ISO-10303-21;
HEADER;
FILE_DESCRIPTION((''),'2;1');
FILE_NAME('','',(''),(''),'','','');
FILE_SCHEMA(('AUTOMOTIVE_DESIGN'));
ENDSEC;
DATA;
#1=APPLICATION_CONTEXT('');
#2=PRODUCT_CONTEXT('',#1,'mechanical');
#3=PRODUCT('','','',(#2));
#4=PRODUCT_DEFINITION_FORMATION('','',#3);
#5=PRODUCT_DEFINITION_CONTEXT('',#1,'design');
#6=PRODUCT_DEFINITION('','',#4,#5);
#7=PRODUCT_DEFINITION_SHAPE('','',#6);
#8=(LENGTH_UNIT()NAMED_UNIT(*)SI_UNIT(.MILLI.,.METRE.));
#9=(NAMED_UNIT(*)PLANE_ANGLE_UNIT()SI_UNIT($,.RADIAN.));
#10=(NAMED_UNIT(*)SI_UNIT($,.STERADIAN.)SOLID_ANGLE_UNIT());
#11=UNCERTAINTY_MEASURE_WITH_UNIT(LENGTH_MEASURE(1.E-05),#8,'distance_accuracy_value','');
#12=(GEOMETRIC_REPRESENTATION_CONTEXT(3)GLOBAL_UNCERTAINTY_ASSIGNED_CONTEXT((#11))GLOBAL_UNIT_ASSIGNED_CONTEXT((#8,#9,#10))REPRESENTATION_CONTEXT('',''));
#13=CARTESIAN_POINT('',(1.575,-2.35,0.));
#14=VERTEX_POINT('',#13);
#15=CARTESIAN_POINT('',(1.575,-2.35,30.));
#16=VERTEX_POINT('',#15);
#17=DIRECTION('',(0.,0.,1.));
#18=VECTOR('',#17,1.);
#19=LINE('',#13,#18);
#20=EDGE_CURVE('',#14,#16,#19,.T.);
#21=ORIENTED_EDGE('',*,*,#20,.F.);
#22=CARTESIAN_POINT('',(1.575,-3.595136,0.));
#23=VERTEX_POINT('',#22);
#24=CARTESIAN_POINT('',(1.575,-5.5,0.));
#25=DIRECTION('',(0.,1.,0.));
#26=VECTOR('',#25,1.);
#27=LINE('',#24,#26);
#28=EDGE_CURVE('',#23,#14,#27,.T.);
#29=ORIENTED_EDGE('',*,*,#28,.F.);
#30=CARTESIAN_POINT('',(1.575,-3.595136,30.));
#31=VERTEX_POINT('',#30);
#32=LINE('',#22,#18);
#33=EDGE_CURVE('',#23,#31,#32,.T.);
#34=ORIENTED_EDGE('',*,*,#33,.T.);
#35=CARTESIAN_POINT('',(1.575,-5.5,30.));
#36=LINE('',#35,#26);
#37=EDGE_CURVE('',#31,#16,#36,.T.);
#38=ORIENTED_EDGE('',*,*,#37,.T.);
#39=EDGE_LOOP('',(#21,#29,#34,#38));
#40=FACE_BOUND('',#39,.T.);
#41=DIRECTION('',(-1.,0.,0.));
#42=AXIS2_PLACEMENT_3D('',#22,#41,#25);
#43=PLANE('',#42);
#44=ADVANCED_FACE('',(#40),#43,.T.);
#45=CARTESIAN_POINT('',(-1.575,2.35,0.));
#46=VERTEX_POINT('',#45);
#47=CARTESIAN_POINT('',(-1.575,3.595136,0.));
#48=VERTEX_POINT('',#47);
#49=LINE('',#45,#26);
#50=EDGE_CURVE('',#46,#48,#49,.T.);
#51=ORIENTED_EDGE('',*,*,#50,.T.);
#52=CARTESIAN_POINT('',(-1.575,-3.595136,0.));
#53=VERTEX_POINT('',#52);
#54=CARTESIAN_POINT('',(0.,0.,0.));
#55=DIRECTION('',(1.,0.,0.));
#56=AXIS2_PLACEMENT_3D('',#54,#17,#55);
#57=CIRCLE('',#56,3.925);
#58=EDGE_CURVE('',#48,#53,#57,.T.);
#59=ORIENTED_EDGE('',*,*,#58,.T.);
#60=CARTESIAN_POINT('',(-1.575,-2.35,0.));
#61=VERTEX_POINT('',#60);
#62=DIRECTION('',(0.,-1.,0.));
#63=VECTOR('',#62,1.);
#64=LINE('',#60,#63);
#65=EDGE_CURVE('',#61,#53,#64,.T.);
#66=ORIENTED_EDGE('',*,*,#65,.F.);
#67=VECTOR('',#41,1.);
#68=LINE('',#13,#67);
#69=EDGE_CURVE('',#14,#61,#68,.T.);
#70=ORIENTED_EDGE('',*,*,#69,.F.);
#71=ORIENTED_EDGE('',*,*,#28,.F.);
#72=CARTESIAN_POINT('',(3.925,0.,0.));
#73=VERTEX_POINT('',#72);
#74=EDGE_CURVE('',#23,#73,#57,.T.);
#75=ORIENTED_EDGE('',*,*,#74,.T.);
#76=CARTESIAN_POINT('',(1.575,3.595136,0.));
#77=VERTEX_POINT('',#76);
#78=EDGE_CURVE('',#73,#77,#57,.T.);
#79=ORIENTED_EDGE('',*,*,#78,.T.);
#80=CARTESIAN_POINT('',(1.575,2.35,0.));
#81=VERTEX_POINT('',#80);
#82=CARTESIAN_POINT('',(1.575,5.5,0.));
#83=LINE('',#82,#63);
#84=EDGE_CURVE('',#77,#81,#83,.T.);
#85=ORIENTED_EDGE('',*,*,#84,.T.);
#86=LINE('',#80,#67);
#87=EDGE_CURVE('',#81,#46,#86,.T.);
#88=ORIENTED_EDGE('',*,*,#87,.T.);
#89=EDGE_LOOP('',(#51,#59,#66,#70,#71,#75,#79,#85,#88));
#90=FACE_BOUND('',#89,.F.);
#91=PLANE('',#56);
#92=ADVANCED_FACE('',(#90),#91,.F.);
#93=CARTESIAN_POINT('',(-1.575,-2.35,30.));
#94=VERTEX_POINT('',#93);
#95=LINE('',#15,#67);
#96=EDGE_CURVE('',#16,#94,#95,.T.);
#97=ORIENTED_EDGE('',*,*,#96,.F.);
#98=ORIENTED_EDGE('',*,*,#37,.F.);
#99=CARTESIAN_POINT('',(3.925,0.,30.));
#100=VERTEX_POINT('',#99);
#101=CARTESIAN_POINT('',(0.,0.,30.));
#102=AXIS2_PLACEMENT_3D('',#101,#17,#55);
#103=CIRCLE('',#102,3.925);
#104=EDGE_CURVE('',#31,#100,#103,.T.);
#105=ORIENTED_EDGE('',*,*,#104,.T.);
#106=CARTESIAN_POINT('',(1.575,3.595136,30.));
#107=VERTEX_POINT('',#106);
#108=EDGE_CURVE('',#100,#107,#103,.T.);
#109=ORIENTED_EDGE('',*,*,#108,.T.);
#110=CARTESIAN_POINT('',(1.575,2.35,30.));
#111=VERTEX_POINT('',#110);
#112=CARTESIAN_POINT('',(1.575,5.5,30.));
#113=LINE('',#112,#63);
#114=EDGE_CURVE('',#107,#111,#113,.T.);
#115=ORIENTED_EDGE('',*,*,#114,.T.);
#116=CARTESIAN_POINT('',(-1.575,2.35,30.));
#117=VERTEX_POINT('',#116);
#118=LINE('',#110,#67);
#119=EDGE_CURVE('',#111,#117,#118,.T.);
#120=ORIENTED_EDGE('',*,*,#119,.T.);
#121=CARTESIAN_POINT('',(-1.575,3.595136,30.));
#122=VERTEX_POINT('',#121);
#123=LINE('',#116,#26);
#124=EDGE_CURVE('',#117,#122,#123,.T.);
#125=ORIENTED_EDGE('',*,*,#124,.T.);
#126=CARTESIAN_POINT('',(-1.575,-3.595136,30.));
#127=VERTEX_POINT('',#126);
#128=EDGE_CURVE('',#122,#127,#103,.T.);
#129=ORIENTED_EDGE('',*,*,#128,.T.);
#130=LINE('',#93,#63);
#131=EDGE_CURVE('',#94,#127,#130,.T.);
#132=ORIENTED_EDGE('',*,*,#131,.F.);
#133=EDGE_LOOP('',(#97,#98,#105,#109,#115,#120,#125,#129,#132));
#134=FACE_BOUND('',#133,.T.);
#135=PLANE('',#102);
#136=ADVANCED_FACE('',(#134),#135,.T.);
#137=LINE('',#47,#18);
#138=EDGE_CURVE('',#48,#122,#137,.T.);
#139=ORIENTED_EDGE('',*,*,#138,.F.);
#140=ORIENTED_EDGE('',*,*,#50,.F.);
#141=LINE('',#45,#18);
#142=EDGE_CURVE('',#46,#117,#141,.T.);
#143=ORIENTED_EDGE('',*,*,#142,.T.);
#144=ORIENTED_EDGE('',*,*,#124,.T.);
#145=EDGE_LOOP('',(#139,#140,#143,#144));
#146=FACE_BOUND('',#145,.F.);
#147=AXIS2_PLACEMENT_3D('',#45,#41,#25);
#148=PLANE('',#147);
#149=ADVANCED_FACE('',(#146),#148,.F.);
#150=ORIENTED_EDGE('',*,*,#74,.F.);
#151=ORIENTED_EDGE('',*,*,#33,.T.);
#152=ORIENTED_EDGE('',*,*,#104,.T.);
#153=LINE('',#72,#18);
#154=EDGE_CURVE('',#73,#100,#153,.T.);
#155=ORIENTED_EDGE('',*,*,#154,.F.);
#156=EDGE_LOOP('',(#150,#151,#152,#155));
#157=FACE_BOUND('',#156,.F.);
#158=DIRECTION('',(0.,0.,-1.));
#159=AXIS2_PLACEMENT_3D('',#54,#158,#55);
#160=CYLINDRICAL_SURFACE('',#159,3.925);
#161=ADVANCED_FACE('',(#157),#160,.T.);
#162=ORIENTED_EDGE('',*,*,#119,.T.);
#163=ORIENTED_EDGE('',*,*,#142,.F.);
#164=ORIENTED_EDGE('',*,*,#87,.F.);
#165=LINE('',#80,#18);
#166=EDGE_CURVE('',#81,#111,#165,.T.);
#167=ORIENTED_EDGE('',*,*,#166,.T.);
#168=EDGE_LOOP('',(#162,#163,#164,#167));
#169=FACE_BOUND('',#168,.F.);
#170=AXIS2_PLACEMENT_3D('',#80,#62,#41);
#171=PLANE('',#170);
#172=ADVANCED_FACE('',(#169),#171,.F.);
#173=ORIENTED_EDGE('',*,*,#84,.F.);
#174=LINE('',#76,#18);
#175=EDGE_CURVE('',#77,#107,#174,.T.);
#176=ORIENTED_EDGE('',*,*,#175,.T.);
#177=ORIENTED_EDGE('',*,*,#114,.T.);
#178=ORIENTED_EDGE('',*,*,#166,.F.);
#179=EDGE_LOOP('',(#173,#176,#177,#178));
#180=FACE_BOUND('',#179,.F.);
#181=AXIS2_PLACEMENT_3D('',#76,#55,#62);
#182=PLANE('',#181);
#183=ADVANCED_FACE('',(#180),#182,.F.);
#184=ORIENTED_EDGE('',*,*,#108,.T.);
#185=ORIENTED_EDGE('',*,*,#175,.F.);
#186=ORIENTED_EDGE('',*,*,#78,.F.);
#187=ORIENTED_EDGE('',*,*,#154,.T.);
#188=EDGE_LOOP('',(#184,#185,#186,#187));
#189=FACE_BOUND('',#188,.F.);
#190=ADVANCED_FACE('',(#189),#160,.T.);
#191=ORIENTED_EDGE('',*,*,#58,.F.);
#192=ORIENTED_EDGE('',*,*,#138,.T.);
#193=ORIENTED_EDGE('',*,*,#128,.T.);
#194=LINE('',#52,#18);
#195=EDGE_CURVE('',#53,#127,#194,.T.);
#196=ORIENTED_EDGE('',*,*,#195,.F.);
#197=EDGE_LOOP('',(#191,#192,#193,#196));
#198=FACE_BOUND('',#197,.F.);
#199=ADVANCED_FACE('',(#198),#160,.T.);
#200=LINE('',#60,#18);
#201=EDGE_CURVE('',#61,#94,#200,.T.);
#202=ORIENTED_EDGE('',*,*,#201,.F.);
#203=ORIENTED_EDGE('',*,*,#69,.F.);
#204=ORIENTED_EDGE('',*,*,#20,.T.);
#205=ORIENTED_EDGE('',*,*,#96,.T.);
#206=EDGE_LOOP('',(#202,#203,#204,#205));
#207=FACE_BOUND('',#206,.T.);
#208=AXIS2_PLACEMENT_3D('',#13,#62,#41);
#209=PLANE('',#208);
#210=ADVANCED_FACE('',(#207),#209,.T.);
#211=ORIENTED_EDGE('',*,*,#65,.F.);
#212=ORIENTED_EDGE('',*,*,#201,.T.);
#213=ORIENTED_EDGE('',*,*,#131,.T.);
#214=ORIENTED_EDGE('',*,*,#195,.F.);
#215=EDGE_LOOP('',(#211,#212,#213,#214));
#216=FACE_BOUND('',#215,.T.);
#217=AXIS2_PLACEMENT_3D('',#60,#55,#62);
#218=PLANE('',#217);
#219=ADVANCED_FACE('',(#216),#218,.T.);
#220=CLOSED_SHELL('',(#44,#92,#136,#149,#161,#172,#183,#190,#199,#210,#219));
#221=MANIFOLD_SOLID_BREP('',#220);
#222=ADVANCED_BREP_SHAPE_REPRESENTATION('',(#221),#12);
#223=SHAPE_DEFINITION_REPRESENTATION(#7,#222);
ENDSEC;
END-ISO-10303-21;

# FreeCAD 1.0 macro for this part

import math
import FreeCAD as App
import Part
import Sketcher

V = App.Vector
Q = App.Units.Quantity

doc = App.newDocument("Part")
params = doc.addObject("Spreadsheet::Sheet", "Params")
for row, (alias, value) in enumerate([
    ("sketch1_width", "3.15 mm"),
    ("pad1_length", "30 mm"),
], start=1):
    params.set(f"A{row}", alias)
    params.set(f"B{row}", "=" + value)
    params.setAlias(f"B{row}", alias)

body = doc.addObject("PartDesign::Body", "Body")

sketch1 = body.newObject("Sketcher::SketchObject", "Sketch")
sketch1.AttachmentSupport = (doc.getObject("XY_Plane"), [""])
sketch1.MapMode = "FlatFace"
sketch1.addGeometry(Part.ArcOfCircle(Part.Circle(V(0, 0, 0), V(0, 0, 1), 3.925), math.radians(-66.342161), math.radians(66.342161)), False)
sketch1.addGeometry(Part.LineSegment(V(1.575, 3.595136, 0), V(1.575, 2.35, 0)), False)
sketch1.addGeometry(Part.LineSegment(V(1.575, 2.35, 0), V(-1.575, 2.35, 0)), False)
sketch1.addGeometry(Part.LineSegment(V(-1.575, 2.35, 0), V(-1.575, 3.595136, 0)), False)
sketch1.addGeometry(Part.ArcOfCircle(Part.Circle(V(0, 0, 0), V(0, 0, 1), 3.925), math.radians(113.657839), math.radians(246.342161)), False)
sketch1.addGeometry(Part.LineSegment(V(-1.575, -3.595136, 0), V(-1.575, -2.35, 0)), False)
sketch1.addGeometry(Part.LineSegment(V(-1.575, -2.35, 0), V(1.575, -2.35, 0)), False)
sketch1.addGeometry(Part.LineSegment(V(1.575, -2.35, 0), V(1.575, -3.595136, 0)), False)
sketch1.addConstraint(Sketcher.Constraint("Coincident", 0, 2, 1, 1))
sketch1.addConstraint(Sketcher.Constraint("Coincident", 1, 2, 2, 1))
sketch1.addConstraint(Sketcher.Constraint("Coincident", 2, 2, 3, 1))
sketch1.addConstraint(Sketcher.Constraint("Coincident", 3, 2, 4, 1))
sketch1.addConstraint(Sketcher.Constraint("Coincident", 4, 2, 5, 1))
sketch1.addConstraint(Sketcher.Constraint("Coincident", 5, 2, 6, 1))
sketch1.addConstraint(Sketcher.Constraint("Coincident", 6, 2, 7, 1))
sketch1.addConstraint(Sketcher.Constraint("Coincident", 7, 2, 0, 1))
sketch1.addConstraint(Sketcher.Constraint("Vertical", 1))
sketch1.addConstraint(Sketcher.Constraint("Horizontal", 2))
sketch1.addConstraint(Sketcher.Constraint("Vertical", 3))
sketch1.addConstraint(Sketcher.Constraint("Vertical", 5))
sketch1.addConstraint(Sketcher.Constraint("Horizontal", 6))
sketch1.addConstraint(Sketcher.Constraint("Vertical", 7))
sketch1.addConstraint(Sketcher.Constraint("Coincident", 0, 3, -1, 1))
sketch1.addConstraint(Sketcher.Constraint("Coincident", 4, 3, -1, 1))
sketch1.addConstraint(Sketcher.Constraint("Equal", 0, 4))
sketch1.addConstraint(Sketcher.Constraint("Symmetric", 1, 2, 5, 2, -1, 1))
sketch1.addConstraint(Sketcher.Constraint("Horizontal", 0, 2, 3, 2))
sketch1.addConstraint(Sketcher.Constraint("Horizontal", 4, 2, 7, 2))
sketch1.addConstraint(Sketcher.Constraint("Radius", 0, Q("3.925 mm")))
sketch1.addConstraint(Sketcher.Constraint("DistanceX", 2, 2, 2, 1, Q("3.15 mm")))
sketch1.addConstraint(Sketcher.Constraint("DistanceY", 5, 2, 2, 2, Q("4.7 mm")))
sketch1.setExpression("Constraints[21]", "Params.sketch1_width")
pad1 = body.newObject("PartDesign::Pad", "Pad")
pad1.Profile = sketch1
pad1.setExpression("Length", "Params.pad1_length")

doc.recompute()
